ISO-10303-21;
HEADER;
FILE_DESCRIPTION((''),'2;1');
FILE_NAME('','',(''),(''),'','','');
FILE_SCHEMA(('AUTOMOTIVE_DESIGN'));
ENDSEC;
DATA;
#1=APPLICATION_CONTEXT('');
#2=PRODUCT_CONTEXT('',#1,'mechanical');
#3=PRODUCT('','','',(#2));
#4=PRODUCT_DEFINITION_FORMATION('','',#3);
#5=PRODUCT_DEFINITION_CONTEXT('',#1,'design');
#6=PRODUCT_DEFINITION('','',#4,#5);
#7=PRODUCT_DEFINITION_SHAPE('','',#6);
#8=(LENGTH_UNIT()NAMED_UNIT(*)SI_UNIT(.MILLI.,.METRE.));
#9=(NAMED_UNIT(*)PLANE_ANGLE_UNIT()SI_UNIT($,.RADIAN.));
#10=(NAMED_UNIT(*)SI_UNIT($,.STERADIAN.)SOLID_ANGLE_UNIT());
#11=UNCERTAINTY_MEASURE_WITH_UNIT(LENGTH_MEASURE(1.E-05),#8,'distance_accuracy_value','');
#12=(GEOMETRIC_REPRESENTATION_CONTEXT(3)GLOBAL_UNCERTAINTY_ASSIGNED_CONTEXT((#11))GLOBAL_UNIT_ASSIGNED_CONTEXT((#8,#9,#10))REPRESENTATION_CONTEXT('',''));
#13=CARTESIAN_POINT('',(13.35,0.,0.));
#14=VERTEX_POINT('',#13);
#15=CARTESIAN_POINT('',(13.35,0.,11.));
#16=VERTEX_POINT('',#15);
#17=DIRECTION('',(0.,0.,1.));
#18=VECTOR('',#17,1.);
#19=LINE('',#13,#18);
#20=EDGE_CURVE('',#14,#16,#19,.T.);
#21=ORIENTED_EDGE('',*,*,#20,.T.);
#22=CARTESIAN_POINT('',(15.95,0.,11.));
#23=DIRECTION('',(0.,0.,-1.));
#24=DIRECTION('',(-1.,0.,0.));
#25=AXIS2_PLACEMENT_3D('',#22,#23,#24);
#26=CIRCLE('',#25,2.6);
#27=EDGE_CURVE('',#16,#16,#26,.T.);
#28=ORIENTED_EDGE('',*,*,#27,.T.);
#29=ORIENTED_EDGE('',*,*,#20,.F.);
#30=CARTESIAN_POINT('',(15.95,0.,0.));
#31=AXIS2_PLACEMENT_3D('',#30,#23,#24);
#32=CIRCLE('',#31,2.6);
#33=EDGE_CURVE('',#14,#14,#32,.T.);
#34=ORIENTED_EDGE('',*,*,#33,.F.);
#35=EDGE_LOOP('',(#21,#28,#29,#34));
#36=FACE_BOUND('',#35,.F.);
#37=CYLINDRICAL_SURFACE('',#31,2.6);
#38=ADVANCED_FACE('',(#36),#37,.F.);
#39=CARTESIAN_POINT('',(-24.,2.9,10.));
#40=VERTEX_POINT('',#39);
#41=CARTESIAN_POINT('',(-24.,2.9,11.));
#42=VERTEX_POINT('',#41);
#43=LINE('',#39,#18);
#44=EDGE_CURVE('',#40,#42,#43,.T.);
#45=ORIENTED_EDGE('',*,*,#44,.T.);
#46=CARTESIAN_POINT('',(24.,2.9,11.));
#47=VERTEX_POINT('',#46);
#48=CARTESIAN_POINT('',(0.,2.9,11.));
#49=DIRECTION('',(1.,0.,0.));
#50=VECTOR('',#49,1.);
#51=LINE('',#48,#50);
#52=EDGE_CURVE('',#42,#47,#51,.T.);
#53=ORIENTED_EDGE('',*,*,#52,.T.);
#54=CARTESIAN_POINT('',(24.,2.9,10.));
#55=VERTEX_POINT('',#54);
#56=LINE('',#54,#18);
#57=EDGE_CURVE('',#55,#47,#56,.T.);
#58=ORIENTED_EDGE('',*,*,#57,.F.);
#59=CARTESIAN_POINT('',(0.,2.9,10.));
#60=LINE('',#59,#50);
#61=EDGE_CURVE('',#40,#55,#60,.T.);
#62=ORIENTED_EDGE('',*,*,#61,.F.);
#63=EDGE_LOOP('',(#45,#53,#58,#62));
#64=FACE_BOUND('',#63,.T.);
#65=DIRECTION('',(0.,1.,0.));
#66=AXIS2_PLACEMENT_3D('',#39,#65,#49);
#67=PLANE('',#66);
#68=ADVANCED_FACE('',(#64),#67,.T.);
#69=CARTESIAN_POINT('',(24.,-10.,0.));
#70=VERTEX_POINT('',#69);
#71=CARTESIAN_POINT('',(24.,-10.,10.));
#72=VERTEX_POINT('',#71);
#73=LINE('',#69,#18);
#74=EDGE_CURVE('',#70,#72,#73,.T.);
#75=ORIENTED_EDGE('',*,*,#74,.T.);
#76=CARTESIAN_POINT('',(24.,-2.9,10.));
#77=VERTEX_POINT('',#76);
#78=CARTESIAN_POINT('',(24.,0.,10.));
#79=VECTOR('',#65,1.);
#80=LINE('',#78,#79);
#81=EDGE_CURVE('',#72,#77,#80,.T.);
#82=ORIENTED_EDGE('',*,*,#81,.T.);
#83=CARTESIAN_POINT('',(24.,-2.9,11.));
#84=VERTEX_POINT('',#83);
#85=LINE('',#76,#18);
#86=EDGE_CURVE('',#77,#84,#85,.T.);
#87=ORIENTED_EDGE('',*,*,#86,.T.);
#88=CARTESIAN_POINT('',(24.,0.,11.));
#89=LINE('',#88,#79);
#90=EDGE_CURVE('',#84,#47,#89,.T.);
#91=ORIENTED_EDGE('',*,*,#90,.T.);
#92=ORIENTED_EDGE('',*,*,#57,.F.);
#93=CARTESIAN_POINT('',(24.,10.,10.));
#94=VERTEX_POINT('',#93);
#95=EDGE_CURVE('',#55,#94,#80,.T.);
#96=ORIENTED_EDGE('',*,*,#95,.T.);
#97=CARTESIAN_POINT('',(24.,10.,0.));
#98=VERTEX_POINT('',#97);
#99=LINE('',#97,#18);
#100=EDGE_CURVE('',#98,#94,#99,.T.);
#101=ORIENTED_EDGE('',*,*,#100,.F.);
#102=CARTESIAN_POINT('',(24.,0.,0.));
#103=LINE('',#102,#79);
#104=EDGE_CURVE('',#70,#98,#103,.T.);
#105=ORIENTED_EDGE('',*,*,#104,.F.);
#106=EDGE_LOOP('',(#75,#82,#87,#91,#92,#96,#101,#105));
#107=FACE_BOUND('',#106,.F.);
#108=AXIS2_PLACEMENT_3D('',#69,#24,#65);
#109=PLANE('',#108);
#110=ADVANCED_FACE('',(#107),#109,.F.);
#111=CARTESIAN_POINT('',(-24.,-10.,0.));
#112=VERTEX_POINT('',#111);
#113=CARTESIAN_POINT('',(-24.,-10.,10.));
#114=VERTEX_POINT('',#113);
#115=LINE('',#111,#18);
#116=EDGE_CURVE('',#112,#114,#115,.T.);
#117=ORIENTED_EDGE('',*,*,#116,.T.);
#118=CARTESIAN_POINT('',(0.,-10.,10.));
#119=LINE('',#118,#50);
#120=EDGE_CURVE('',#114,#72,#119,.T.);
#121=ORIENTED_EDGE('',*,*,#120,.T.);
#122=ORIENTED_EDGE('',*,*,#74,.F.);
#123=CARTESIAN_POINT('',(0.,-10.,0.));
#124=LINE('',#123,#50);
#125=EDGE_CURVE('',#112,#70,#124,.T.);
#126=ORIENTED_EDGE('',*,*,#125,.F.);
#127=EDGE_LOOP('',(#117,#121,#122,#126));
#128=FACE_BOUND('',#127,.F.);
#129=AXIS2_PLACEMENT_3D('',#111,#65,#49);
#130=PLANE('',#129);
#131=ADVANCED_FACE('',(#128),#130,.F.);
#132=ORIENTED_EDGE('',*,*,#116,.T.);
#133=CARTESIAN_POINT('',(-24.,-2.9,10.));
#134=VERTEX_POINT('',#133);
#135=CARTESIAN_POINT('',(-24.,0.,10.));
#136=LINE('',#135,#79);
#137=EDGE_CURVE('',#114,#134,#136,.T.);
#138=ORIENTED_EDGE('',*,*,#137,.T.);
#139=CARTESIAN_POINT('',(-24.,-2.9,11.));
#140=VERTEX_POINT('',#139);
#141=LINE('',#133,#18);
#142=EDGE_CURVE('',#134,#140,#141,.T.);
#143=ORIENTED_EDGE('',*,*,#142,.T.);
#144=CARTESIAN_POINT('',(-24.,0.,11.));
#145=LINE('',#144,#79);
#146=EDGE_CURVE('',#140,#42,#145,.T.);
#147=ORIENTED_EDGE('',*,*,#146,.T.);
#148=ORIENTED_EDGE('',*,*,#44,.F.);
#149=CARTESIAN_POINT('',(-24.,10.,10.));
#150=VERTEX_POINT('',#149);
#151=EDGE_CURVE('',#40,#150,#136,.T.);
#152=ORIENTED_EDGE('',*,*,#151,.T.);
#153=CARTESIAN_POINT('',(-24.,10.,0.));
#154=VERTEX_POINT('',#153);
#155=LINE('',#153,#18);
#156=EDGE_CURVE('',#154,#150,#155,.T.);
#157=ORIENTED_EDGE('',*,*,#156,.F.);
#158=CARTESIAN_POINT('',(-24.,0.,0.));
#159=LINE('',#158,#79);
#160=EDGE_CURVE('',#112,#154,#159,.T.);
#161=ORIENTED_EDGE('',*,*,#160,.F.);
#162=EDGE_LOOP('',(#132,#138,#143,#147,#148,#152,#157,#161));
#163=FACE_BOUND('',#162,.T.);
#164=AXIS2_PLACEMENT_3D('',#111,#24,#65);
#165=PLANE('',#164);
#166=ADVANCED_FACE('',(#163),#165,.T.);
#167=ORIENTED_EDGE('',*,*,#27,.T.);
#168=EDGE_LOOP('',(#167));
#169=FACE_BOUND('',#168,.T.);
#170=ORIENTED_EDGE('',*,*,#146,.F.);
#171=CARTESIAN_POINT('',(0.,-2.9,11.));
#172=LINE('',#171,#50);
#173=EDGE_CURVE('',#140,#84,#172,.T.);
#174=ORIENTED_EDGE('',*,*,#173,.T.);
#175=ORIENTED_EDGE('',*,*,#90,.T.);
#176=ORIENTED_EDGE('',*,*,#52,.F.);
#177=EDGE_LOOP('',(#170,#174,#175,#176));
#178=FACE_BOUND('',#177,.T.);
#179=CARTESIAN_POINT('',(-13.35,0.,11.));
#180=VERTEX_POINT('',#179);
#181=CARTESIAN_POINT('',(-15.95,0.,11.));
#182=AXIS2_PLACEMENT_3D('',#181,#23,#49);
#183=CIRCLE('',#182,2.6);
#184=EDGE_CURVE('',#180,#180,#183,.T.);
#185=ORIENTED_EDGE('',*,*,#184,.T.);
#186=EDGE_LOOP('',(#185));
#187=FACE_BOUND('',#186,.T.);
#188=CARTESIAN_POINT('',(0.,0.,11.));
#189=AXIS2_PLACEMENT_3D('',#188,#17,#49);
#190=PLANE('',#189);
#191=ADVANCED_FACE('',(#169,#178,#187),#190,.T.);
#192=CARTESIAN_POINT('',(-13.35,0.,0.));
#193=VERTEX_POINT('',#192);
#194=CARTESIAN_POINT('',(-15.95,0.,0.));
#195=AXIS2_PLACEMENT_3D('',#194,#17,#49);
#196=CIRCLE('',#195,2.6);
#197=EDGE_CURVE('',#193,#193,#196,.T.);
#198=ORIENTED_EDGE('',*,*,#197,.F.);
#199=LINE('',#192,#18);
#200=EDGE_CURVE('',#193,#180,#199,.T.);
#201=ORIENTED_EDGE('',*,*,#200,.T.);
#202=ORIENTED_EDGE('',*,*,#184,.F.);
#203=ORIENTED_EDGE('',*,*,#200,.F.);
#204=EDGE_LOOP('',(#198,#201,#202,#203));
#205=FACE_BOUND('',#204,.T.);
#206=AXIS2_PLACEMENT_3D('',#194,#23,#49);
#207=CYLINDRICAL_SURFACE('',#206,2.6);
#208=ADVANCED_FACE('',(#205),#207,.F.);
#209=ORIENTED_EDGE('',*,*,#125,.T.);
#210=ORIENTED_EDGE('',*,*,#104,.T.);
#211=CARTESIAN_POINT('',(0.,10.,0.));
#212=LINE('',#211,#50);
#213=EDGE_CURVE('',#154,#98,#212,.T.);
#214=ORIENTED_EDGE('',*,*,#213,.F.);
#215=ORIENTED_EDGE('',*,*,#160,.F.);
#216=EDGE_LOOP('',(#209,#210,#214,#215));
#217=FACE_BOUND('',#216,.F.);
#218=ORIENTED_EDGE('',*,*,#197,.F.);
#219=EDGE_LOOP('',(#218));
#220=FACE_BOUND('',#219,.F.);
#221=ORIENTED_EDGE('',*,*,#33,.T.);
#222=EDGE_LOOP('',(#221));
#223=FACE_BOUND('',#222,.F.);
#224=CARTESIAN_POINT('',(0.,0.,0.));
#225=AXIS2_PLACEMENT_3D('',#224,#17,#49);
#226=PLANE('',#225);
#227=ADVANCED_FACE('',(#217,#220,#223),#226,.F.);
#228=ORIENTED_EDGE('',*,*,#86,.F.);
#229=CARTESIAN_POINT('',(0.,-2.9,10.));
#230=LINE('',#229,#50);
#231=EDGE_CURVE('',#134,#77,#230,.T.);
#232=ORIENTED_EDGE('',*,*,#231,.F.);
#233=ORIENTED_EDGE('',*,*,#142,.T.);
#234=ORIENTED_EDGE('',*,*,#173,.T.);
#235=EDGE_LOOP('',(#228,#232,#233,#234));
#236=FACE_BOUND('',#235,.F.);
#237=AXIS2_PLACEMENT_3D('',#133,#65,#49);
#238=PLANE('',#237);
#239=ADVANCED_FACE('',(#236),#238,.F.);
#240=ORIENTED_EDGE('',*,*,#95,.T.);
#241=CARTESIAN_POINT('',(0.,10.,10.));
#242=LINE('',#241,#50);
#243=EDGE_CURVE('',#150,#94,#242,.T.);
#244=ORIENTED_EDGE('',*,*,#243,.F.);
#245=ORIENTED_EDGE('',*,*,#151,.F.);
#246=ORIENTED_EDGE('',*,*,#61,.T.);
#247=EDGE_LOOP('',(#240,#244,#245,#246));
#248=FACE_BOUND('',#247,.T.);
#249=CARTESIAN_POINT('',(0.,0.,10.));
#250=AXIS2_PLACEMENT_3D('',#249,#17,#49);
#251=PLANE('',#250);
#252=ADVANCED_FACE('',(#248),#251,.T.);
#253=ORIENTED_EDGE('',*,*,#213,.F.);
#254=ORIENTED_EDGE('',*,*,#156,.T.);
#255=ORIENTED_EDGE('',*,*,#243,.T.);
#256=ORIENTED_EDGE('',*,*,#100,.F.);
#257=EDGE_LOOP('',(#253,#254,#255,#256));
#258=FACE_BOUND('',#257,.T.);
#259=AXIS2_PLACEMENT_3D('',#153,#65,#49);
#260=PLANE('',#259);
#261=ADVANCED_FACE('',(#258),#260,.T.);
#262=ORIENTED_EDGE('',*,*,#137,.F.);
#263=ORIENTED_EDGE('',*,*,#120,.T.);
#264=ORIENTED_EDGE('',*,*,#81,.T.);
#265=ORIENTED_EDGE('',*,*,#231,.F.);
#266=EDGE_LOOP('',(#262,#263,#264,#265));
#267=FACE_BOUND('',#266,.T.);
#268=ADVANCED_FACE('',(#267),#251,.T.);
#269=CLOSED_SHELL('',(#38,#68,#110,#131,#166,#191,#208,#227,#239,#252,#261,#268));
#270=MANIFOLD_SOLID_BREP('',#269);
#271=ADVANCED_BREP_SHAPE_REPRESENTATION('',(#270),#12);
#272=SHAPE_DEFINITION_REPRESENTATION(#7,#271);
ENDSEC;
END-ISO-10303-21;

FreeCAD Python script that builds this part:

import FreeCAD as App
import Part
import Sketcher
from FreeCAD import Vector
Q = App.Units.Quantity


def add_polygon(sketch, points):
    """Adds a closed chain of lines whose ends are joined by coincident constraints."""
    first, n = sketch.GeometryCount, len(points)
    for a, b in zip(points, points[1:] + points[:1]):
        sketch.addGeometry(Part.LineSegment(App.Vector(*a, 0), App.Vector(*b, 0)), False)
    for i in range(n):
        sketch.addConstraint(Sketcher.Constraint("Coincident", first + i, 2, first + (i + 1) % n, 1))

doc = App.newDocument("Part")
params = doc.addObject("Spreadsheet::Sheet", "Params")
for row, (alias, value) in enumerate([
    ("sketch1_width", "48 mm"),
    ("sketch1_height", "20 mm"),
    ("pad1_length", "10 mm"),
    ("sketch2_width", "48 mm"),
    ("sketch2_height", "5.8 mm"),
    ("pad2_length", "1 mm"),
    ("sketch3_diameter", "5.2 mm"),
], start=1):
    params.set(f"A{row}", alias)
    params.set(f"B{row}", "=" + value)
    params.setAlias(f"B{row}", alias)

body = doc.addObject("PartDesign::Body", "Body")

# Sketch on XY plane
sketch1 = body.newObject("Sketcher::SketchObject", "Sketch")
sketch1.AttachmentSupport = (doc.getObject("XY_Plane"), [""])
sketch1.MapMode = "FlatFace"
add_polygon(sketch1, [(-24, 10), (-24, -10), (24, -10), (24, 10)])  # lines 0-3
sketch1.addConstraint([
    Sketcher.Constraint("Vertical", 0),
    Sketcher.Constraint("Horizontal", 1),
    Sketcher.Constraint("Vertical", 2),
    Sketcher.Constraint("Horizontal", 3),
    Sketcher.Constraint("Symmetric", 0, 2, 2, 2, -1, 1),
    Sketcher.Constraint("DistanceX", 1, 1, 1, 2, Q("48 mm")),
    Sketcher.Constraint("DistanceY", 0, 2, 0, 1, Q("20 mm")),
])
sketch1.setExpression("Constraints[9]", "Params.sketch1_width")
sketch1.setExpression("Constraints[10]", "Params.sketch1_height")
pad1 = body.newObject("PartDesign::Pad", "Pad")
pad1.Profile = sketch1
pad1.setExpression("Length", "Params.pad1_length")

# Sketch on XY plane
sketch2 = body.newObject("Sketcher::SketchObject", "Sketch001")
sketch2.AttachmentSupport = (doc.getObject("XY_Plane"), [""])
sketch2.MapMode = "FlatFace"
sketch2.AttachmentOffset = App.Placement(Vector(0, 0, 10), App.Rotation())
add_polygon(sketch2, [(-24, 2.9), (-24, -2.9), (24, -2.9), (24, 2.9)])  # lines 0-3
sketch2.addConstraint([
    Sketcher.Constraint("Vertical", 0),
    Sketcher.Constraint("Horizontal", 1),
    Sketcher.Constraint("Vertical", 2),
    Sketcher.Constraint("Horizontal", 3),
    Sketcher.Constraint("Symmetric", 0, 2, 2, 2, -1, 1),
    Sketcher.Constraint("DistanceX", 1, 1, 1, 2, Q("48 mm")),
    Sketcher.Constraint("DistanceY", 0, 2, 0, 1, Q("5.8 mm")),
])
sketch2.setExpression("Constraints[9]", "Params.sketch2_width")
sketch2.setExpression("Constraints[10]", "Params.sketch2_height")
pad2 = body.newObject("PartDesign::Pad", "Pad001")
pad2.Profile = sketch2
pad2.setExpression("Length", "Params.pad2_length")

# Sketch on XY plane
sketch3 = body.newObject("Sketcher::SketchObject", "Sketch002")
sketch3.AttachmentSupport = (doc.getObject("XY_Plane"), [""])
sketch3.MapMode = "FlatFace"
sketch3.addGeometry(Part.Circle(Vector(-15.95, 0, 0), Vector(0, 0, 1), 2.6), False)
sketch3.addConstraint([
    Sketcher.Constraint("PointOnObject", 0, 3, -1),
    Sketcher.Constraint("Diameter", 0, Q("5.2 mm")),
    Sketcher.Constraint("DistanceX", 0, 3, -1, 1, Q("15.95 mm")),
])
sketch3.setExpression("Constraints[1]", "Params.sketch3_diameter")
pocket1 = body.newObject("PartDesign::Pocket", "Pocket")
pocket1.Profile = sketch3
pocket1.Type = "ThroughAll"
pocket1.Reversed = True
doc.recompute()

mirrored = body.newObject("PartDesign::Mirrored", "Mirrored")
mirrored.Originals = [pocket1]
mirrored.MirrorPlane = (doc.getObject("YZ_Plane"), [""])
body.Tip = mirrored

doc.recompute()
